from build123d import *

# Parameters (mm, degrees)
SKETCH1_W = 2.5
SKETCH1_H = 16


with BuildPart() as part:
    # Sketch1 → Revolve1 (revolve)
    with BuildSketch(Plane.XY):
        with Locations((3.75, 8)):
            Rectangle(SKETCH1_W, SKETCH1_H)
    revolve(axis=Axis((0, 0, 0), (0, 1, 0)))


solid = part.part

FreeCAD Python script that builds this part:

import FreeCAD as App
import Part
import Sketcher
Q = App.Units.Quantity

doc = App.newDocument("Part")
body = doc.addObject("PartDesign::Body", "Body")

# Sketch on XY plane
sketch1 = doc.addObject("Sketcher::SketchObject", "Sketch")
body.addObject(sketch1)
sketch1.AttachmentSupport = (doc.XY_Plane, [""])
sketch1.MapMode = "FlatFace"
sketch1.addGeometry([
    Part.LineSegment(App.Vector(2.5, 16, 0), App.Vector(2.5, 0, 0)),
    Part.LineSegment(App.Vector(2.5, 0, 0), App.Vector(5, 0, 0)),
    Part.LineSegment(App.Vector(5, 0, 0), App.Vector(5, 16, 0)),
    Part.LineSegment(App.Vector(5, 16, 0), App.Vector(2.5, 16, 0)),
], False)
sketch1.addConstraint([
    Sketcher.Constraint("Coincident", 0, 2, 1, 1),
    Sketcher.Constraint("Coincident", 1, 2, 2, 1),
    Sketcher.Constraint("Coincident", 2, 2, 3, 1),
    Sketcher.Constraint("Coincident", 3, 2, 0, 1),
    Sketcher.Constraint("Vertical", 0),
    Sketcher.Constraint("Horizontal", 1),
    Sketcher.Constraint("Vertical", 2),
    Sketcher.Constraint("Horizontal", 3),
    Sketcher.Constraint("PointOnObject", 0, 2, -1),
    Sketcher.Constraint("DistanceY", 0, 2, 0, 1, Q("16 mm")),
    Sketcher.Constraint("DistanceX", 1, 1, 1, 2, Q("2.5 mm")),
    Sketcher.Constraint("DistanceX", -1, 1, 1, 2, Q("5 mm")),
])
revolution = doc.addObject("PartDesign::Revolution", "Revolution")
body.addObject(revolution)
revolution.Profile = sketch1
revolution.ReferenceAxis = (sketch1, ["V_Axis"])
revolution.Angle = 360

doc.recompute()
